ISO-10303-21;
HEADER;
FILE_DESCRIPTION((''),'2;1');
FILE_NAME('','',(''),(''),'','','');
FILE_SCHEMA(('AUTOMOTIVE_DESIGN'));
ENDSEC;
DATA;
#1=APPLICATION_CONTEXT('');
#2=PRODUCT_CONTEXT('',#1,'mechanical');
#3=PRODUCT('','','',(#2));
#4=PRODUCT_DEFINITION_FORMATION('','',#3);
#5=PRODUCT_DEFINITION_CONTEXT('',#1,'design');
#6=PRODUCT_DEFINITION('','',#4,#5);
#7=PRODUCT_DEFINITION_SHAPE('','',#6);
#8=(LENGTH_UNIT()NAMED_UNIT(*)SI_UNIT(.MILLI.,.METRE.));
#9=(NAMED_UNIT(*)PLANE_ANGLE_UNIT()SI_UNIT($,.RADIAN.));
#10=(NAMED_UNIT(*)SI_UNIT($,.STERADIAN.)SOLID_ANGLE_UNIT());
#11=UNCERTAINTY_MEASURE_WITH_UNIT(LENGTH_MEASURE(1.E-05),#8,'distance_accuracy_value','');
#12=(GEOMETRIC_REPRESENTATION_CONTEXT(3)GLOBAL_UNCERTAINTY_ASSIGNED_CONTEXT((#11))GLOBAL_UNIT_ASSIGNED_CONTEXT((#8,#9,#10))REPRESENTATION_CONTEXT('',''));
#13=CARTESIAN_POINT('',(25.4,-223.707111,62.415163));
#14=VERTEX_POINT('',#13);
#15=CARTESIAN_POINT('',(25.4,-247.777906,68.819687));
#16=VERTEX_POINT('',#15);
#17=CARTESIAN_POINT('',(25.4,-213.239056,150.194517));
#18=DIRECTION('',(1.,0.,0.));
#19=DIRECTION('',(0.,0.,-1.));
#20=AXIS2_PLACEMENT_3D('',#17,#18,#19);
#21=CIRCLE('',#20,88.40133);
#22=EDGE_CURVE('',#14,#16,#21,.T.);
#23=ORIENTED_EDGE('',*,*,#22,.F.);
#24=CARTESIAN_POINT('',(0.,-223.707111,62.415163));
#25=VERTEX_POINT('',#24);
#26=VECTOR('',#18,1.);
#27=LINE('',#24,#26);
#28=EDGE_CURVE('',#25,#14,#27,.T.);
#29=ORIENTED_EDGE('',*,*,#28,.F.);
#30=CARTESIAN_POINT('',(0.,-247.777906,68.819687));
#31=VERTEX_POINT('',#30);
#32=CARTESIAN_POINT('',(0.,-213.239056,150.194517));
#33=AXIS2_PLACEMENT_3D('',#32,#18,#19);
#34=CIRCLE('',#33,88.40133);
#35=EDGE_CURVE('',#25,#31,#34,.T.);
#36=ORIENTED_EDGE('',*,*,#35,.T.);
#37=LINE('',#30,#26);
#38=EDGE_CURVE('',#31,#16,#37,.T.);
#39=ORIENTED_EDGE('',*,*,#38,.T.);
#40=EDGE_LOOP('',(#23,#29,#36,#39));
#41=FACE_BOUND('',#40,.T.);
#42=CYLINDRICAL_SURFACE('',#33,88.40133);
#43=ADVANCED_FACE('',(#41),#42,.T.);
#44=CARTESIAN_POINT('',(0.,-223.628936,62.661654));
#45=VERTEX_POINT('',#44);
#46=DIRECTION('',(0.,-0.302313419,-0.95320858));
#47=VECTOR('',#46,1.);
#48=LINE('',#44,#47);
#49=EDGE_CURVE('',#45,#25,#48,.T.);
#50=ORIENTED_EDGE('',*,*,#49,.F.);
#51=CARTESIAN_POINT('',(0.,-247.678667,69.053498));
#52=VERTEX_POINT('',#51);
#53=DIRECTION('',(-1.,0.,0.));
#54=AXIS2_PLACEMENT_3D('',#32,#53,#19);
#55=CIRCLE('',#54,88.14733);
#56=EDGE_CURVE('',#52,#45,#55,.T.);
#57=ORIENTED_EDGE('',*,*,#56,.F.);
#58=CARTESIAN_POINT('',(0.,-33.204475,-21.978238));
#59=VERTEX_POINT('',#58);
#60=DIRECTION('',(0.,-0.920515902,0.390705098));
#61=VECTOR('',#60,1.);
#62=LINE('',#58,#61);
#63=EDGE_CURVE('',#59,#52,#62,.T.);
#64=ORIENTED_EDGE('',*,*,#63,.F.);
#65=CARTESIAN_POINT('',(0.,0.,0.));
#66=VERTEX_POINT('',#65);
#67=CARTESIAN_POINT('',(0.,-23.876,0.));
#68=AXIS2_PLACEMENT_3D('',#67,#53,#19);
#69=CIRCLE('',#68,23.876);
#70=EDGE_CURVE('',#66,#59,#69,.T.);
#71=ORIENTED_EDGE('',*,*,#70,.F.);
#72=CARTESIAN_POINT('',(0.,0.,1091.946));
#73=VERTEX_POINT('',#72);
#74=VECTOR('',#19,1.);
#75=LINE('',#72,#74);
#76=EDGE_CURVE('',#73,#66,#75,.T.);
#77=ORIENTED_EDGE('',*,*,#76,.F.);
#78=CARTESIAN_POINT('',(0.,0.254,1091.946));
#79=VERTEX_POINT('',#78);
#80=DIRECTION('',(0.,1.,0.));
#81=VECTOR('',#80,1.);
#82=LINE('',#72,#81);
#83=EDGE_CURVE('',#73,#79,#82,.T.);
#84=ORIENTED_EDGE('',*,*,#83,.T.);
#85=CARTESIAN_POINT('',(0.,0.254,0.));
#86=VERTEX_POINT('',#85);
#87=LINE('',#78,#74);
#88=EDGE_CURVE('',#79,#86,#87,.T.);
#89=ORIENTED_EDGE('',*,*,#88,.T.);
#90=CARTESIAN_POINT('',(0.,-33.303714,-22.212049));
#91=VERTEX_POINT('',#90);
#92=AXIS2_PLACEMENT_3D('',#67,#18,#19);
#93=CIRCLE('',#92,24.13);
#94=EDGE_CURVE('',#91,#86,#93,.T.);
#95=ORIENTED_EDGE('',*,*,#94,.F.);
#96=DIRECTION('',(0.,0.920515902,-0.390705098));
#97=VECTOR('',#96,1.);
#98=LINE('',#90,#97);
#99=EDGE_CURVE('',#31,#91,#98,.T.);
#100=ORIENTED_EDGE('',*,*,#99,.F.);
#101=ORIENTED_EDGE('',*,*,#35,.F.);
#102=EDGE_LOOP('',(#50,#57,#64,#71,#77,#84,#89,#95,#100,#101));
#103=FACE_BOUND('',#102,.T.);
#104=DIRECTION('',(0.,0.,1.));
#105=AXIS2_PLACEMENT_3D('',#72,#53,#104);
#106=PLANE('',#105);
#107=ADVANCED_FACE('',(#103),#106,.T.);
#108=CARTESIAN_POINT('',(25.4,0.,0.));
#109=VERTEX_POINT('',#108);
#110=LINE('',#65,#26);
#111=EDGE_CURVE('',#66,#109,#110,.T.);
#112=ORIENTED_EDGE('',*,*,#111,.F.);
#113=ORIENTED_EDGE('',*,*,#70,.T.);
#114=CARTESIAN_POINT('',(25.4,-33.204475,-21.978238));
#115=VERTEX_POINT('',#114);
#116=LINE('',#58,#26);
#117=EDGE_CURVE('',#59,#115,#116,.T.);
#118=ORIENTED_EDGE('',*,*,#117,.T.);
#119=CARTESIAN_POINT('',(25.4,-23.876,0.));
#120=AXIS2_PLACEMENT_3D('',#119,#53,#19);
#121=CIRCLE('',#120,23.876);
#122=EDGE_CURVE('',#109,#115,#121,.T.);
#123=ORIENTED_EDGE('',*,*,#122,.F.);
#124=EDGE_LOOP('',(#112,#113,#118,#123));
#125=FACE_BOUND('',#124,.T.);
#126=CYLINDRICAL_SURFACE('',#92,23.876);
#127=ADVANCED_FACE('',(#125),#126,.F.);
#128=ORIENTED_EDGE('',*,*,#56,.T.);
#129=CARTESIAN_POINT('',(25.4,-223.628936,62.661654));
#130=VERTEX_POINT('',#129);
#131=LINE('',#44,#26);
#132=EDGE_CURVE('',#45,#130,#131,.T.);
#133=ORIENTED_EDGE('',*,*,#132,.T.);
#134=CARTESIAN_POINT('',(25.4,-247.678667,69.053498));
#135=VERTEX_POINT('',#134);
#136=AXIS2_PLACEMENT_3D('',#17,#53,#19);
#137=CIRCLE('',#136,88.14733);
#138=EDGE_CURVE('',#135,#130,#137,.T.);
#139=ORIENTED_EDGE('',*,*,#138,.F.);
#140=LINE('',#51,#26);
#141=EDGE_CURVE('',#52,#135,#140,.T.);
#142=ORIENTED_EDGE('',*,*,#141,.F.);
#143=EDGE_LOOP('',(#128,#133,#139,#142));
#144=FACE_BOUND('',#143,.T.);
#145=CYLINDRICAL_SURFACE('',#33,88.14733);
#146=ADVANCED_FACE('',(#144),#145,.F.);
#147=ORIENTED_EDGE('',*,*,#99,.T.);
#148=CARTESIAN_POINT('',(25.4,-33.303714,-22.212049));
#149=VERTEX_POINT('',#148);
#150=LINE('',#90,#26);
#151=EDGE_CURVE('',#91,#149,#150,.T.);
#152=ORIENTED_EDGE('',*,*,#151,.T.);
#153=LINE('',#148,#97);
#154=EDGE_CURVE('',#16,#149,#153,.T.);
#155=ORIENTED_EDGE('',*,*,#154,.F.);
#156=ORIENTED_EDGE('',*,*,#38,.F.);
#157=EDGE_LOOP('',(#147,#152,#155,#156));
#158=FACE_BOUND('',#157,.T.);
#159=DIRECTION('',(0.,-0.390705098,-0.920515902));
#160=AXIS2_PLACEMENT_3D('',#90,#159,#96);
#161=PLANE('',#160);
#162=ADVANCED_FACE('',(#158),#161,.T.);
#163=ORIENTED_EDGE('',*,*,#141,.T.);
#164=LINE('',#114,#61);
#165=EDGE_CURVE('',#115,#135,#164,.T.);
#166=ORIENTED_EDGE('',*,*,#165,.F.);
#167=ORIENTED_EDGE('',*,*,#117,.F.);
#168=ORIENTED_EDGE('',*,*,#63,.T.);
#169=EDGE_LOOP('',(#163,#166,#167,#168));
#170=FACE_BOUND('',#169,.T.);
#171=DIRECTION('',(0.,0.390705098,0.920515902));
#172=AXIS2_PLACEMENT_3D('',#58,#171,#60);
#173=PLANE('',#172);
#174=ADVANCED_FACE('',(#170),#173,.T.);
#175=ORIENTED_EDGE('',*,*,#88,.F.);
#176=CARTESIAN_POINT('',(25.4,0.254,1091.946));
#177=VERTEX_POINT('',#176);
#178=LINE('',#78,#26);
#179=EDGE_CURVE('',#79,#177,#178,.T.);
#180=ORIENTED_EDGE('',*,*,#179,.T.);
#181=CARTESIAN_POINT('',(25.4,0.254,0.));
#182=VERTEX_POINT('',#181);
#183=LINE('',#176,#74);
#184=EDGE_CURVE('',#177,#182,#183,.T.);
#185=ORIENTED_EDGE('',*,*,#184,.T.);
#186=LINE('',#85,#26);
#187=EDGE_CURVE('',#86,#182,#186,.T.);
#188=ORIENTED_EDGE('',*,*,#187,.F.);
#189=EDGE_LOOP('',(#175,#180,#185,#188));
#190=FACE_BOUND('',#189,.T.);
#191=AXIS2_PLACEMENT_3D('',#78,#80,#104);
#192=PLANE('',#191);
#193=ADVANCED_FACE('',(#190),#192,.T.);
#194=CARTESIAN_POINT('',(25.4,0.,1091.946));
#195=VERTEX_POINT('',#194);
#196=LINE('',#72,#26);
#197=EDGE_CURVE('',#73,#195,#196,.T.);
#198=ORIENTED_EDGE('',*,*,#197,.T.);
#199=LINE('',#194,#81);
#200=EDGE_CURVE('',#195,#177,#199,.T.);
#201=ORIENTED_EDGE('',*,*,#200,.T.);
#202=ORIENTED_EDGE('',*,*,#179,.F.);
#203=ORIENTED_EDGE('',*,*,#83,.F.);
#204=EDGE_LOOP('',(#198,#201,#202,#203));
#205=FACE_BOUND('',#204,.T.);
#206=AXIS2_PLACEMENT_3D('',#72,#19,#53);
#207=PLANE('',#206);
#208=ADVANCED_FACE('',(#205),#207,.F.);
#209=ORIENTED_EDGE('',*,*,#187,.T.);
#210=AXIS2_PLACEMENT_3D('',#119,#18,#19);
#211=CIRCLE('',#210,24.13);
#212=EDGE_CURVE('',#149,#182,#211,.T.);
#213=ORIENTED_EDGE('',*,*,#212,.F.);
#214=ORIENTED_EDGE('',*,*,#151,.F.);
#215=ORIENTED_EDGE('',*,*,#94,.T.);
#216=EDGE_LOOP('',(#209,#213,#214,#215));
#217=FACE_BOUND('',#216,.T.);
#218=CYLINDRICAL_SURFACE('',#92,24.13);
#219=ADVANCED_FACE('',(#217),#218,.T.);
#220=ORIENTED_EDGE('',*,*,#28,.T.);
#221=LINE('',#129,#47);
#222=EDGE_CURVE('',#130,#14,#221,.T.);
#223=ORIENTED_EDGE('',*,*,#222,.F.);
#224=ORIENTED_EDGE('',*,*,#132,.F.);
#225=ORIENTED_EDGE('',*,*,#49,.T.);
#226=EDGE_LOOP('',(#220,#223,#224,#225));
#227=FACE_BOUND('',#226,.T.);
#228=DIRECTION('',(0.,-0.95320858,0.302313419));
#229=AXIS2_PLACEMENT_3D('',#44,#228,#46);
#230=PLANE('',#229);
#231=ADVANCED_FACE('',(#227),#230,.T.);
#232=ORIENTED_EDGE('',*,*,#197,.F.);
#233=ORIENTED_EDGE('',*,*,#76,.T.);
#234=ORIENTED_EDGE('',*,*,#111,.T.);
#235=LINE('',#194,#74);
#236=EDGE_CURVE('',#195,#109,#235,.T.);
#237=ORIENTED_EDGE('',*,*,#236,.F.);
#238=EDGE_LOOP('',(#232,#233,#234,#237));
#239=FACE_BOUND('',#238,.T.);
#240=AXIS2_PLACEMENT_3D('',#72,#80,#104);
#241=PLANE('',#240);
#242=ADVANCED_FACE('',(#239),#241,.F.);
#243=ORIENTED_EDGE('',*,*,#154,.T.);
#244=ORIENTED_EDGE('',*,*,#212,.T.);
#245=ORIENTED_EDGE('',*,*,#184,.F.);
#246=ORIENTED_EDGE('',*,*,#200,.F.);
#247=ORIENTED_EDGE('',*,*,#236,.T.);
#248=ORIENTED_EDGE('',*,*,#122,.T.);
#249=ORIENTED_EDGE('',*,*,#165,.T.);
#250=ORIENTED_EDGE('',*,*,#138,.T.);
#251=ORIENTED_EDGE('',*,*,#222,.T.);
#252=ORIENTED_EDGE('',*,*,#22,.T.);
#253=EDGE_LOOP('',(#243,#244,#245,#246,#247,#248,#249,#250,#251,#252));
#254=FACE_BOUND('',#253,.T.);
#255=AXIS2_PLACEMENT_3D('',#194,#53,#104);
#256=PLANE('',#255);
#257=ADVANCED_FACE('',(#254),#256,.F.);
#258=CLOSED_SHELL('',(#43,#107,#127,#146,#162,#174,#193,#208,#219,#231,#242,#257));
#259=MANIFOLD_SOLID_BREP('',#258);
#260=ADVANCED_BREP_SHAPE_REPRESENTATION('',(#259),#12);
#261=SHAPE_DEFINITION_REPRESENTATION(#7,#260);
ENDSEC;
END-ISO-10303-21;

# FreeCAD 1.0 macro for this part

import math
import FreeCAD as App
import Part
import Sketcher

V = App.Vector
Q = App.Units.Quantity


def add_polygon(sketch, points):
    """Adds a closed chain of lines whose ends are joined by coincident constraints."""
    first, n = sketch.GeometryCount, len(points)
    for a, b in zip(points, points[1:] + points[:1]):
        sketch.addGeometry(Part.LineSegment(App.Vector(*a, 0), App.Vector(*b, 0)), False)
    for i in range(n):
        sketch.addConstraint(Sketcher.Constraint("Coincident", first + i, 2, first + (i + 1) % n, 1))

doc = App.newDocument("Part")
body = doc.addObject("PartDesign::Body", "Body")

sketch1 = body.newObject("Sketcher::SketchObject", "Sketch")
sketch1.AttachmentSupport = (doc.getObject("XY_Plane"), [""])
sketch1.MapMode = "FlatFace"
add_polygon(sketch1, [(0, 0.25), (0, 0), (25.4, 0), (25.4, 0.25)])
sketch1.addConstraint([
    Sketcher.Constraint("Vertical", 0),
    Sketcher.Constraint("Horizontal", 1),
    Sketcher.Constraint("Vertical", 2),
    Sketcher.Constraint("Horizontal", 3),
    Sketcher.Constraint("Coincident", 0, 2, -1, 1),
    Sketcher.Constraint("DistanceX", 1, 1, 1, 2, Q("1 in")),
    Sketcher.Constraint("DistanceY", 0, 2, 0, 1, Q("0.01 in")),
])
pad1 = body.newObject("PartDesign::Pad", "Pad")
pad1.Profile = sketch1
pad1.Length = Q("42.99 in")

sketch2 = body.newObject("Sketcher::SketchObject", "Sketch001")
sketch2.AttachmentSupport = (doc.getObject("YZ_Plane"), [""])
sketch2.MapMode = "FlatFace"
sketch2.AttachmentOffset = App.Placement(V(0, 0, 1 * 25.4), App.Rotation())
sketch2.addGeometry([
    Part.LineSegment(V(-33.204475, -21.978238, 0), V(-247.678667, 69.053498, 0)),
    Part.ArcOfCircle(Part.Circle(V(-213.239056, 150.194517, 0), V(0, 0, 1), 88.14733), math.radians(-96.76916), math.radians(247.00162)),
    Part.LineSegment(V(-223.628936, 62.661654, 0), V(-223.707111, 62.415163, 0)),
    Part.ArcOfCircle(Part.Circle(V(-213.239056, 150.194517, 0), V(0, 0, 1), 88.40133), math.radians(-96.800644), math.radians(247.00162)),
    Part.LineSegment(V(-247.777906, 68.819687, 0), V(-33.303714, -22.212049, 0)),
    Part.ArcOfCircle(Part.Circle(V(-23.876, 0, 0), V(0, 0, 1), 24.13), math.radians(-112.99838), math.radians(0)),
    Part.LineSegment(V(0.254, 0, 0), V(0, 0, 0)),
    Part.ArcOfCircle(Part.Circle(V(-23.876, 0, 0), V(0, 0, 1), 23.876), math.radians(-112.99838), math.radians(0)),
], False)
sketch2.addConstraint([
    Sketcher.Constraint("Tangent", 0, 2, 1, 2),
    Sketcher.Constraint("Coincident", 1, 1, 2, 1),
    Sketcher.Constraint("Coincident", 2, 2, 3, 1),
    Sketcher.Constraint("Tangent", 3, 2, 4, 1),
    Sketcher.Constraint("Tangent", 4, 2, 5, 1),
    Sketcher.Constraint("Coincident", 5, 2, 6, 1),
    Sketcher.Constraint("Coincident", 6, 2, 7, 2),
    Sketcher.Constraint("Tangent", 7, 1, 0, 1),
    Sketcher.Constraint("Horizontal", 6),
    Sketcher.Constraint("Coincident", 6, 2, -1, 1),
    Sketcher.Constraint("Coincident", 3, 3, 1, 3),
    Sketcher.Constraint("Coincident", 7, 3, 5, 3),
    Sketcher.Constraint("PointOnObject", 5, 3, -1),
    Sketcher.Constraint("Parallel", 0, 4),
    Sketcher.Constraint("Radius", 5, Q("0.95 in")),
    Sketcher.Constraint("Radius", 7, Q("0.94 in")),
    Sketcher.Constraint("Radius", 1, Q("88.14733 mm")),
    Sketcher.Constraint("DistanceY", -1, 1, 0, 2, Q("69.053498 mm")),
    Sketcher.Constraint("Distance", 2, Q("0.25859 mm")),
    Sketcher.Constraint("DistanceX", 2, 2, -1, 1, Q("223.707111 mm")),
    Sketcher.Constraint("DistanceY", 4, 2, -1, 1, Q("22.212049 mm")),
])
pad2 = body.newObject("PartDesign::Pad", "Pad001")
pad2.Profile = sketch2
pad2.Length = Q("1 in")
pad2.Reversed = True

doc.recompute()
